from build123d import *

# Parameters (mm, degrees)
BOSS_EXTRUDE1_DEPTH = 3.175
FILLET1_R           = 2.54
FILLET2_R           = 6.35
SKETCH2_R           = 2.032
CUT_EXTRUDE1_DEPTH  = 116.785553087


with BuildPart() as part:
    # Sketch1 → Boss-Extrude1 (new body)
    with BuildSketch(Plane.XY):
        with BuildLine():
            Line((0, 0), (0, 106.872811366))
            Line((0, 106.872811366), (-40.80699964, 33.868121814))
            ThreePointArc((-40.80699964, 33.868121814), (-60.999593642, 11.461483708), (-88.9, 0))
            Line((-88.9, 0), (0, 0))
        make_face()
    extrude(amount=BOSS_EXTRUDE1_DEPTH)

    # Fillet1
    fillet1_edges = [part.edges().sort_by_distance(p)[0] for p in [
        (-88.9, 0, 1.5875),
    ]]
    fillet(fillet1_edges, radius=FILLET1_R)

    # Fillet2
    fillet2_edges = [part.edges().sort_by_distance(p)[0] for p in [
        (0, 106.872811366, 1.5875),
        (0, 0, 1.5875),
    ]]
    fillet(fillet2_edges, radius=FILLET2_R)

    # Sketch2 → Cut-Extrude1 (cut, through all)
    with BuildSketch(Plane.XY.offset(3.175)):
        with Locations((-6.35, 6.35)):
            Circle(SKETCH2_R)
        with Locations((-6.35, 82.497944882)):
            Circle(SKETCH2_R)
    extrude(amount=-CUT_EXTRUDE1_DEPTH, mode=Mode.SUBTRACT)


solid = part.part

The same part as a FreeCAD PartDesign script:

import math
import FreeCAD as App
import Part
import Sketcher

V = App.Vector
Q = App.Units.Quantity


def edges_at(feature, points):
    """Names of the edges that pass closest to the given points."""
    edges = feature.Shape.Edges
    near = lambda p: min(range(len(edges)), key=lambda i: edges[i].distToShape(Part.Vertex(*p))[0])
    return sorted({f"Edge{near(p) + 1}" for p in points})

doc = App.newDocument("Part")
body = doc.addObject("PartDesign::Body", "Body")

# Sketch on XY plane
sketch1 = body.newObject("Sketcher::SketchObject", "Sketch")
sketch1.AttachmentSupport = (doc.getObject("XY_Plane"), [""])
sketch1.MapMode = "FlatFace"
sketch1.addGeometry([
    Part.LineSegment(V(0, 0, 0), V(0, 107, 0)),
    Part.LineSegment(V(0, 107, 0), V(-41, 34, 0)),
    Part.ArcOfCircle(Part.Circle(V(-100, 67, 0), V(0, 0, 1), 68), math.radians(-80), math.radians(-29)),
    Part.LineSegment(V(-89, 0, 0), V(0, 0, 0)),
], False)
sketch1.addConstraint([
    Sketcher.Constraint("Coincident", 0, 2, 1, 1),
    Sketcher.Constraint("Tangent", 1, 2, 2, 2),
    Sketcher.Constraint("Coincident", 2, 1, 3, 1),
    Sketcher.Constraint("Coincident", 3, 2, 0, 1),
    Sketcher.Constraint("Vertical", 0),
    Sketcher.Constraint("Horizontal", 3),
    Sketcher.Constraint("Coincident", 3, 2, -1, 1),
    Sketcher.Constraint("DistanceX", 3, 1, 3, 2, Q("3.5 in")),
    Sketcher.Constraint("Radius", 2, 67.962274),
    Sketcher.Constraint("DistanceY", 0, 1, 0, 2, 106.872811),
    Sketcher.Constraint("DistanceX", 1, 2, -1, 1, 40.807),
])
pad1 = body.newObject("PartDesign::Pad", "Pad")
pad1.Profile = sketch1
pad1.Length = Q("0.125 in")
doc.recompute()

fillet = body.newObject("PartDesign::Fillet", "Fillet")
fillet.Base = (pad1, edges_at(pad1, [(-88.9, 0, 1.587)]))
fillet.Radius = Q("0.1 in")
doc.recompute()

fillet2 = body.newObject("PartDesign::Fillet", "Fillet001")
fillet2.Base = (fillet, edges_at(fillet, [(0, 106.873, 1.587), (0, 0, 1.587)]))
fillet2.Radius = Q("0.25 in")

# Sketch on XY plane
sketch2 = body.newObject("Sketcher::SketchObject", "Sketch001")
sketch2.AttachmentSupport = (doc.getObject("XY_Plane"), [""])
sketch2.MapMode = "FlatFace"
sketch2.AttachmentOffset = App.Placement(V(0, 0, 0.125 * 25.4), App.Rotation())
sketch2.addGeometry([
    Part.Circle(V(-6.3, 6.3, 0), V(0, 0, 1), 2),
    Part.Circle(V(-6.3, 82.5, 0), V(0, 0, 1), 2),
], False)
sketch2.addConstraint([
    Sketcher.Constraint("Equal", 0, 1),
    Sketcher.Constraint("Vertical", 0, 3, 1, 3),
    Sketcher.Constraint("Diameter", 0, Q("0.16 in")),
    Sketcher.Constraint("DistanceX", 0, 3, -1, 1, Q("0.25 in")),
    Sketcher.Constraint("DistanceY", -1, 1, 0, 3, Q("0.25 in")),
    Sketcher.Constraint("DistanceY", -1, 1, 1, 3, 82.497945),
])
pocket1 = body.newObject("PartDesign::Pocket", "Pocket")
pocket1.Profile = sketch2
pocket1.Type = "ThroughAll"

doc.recompute()
